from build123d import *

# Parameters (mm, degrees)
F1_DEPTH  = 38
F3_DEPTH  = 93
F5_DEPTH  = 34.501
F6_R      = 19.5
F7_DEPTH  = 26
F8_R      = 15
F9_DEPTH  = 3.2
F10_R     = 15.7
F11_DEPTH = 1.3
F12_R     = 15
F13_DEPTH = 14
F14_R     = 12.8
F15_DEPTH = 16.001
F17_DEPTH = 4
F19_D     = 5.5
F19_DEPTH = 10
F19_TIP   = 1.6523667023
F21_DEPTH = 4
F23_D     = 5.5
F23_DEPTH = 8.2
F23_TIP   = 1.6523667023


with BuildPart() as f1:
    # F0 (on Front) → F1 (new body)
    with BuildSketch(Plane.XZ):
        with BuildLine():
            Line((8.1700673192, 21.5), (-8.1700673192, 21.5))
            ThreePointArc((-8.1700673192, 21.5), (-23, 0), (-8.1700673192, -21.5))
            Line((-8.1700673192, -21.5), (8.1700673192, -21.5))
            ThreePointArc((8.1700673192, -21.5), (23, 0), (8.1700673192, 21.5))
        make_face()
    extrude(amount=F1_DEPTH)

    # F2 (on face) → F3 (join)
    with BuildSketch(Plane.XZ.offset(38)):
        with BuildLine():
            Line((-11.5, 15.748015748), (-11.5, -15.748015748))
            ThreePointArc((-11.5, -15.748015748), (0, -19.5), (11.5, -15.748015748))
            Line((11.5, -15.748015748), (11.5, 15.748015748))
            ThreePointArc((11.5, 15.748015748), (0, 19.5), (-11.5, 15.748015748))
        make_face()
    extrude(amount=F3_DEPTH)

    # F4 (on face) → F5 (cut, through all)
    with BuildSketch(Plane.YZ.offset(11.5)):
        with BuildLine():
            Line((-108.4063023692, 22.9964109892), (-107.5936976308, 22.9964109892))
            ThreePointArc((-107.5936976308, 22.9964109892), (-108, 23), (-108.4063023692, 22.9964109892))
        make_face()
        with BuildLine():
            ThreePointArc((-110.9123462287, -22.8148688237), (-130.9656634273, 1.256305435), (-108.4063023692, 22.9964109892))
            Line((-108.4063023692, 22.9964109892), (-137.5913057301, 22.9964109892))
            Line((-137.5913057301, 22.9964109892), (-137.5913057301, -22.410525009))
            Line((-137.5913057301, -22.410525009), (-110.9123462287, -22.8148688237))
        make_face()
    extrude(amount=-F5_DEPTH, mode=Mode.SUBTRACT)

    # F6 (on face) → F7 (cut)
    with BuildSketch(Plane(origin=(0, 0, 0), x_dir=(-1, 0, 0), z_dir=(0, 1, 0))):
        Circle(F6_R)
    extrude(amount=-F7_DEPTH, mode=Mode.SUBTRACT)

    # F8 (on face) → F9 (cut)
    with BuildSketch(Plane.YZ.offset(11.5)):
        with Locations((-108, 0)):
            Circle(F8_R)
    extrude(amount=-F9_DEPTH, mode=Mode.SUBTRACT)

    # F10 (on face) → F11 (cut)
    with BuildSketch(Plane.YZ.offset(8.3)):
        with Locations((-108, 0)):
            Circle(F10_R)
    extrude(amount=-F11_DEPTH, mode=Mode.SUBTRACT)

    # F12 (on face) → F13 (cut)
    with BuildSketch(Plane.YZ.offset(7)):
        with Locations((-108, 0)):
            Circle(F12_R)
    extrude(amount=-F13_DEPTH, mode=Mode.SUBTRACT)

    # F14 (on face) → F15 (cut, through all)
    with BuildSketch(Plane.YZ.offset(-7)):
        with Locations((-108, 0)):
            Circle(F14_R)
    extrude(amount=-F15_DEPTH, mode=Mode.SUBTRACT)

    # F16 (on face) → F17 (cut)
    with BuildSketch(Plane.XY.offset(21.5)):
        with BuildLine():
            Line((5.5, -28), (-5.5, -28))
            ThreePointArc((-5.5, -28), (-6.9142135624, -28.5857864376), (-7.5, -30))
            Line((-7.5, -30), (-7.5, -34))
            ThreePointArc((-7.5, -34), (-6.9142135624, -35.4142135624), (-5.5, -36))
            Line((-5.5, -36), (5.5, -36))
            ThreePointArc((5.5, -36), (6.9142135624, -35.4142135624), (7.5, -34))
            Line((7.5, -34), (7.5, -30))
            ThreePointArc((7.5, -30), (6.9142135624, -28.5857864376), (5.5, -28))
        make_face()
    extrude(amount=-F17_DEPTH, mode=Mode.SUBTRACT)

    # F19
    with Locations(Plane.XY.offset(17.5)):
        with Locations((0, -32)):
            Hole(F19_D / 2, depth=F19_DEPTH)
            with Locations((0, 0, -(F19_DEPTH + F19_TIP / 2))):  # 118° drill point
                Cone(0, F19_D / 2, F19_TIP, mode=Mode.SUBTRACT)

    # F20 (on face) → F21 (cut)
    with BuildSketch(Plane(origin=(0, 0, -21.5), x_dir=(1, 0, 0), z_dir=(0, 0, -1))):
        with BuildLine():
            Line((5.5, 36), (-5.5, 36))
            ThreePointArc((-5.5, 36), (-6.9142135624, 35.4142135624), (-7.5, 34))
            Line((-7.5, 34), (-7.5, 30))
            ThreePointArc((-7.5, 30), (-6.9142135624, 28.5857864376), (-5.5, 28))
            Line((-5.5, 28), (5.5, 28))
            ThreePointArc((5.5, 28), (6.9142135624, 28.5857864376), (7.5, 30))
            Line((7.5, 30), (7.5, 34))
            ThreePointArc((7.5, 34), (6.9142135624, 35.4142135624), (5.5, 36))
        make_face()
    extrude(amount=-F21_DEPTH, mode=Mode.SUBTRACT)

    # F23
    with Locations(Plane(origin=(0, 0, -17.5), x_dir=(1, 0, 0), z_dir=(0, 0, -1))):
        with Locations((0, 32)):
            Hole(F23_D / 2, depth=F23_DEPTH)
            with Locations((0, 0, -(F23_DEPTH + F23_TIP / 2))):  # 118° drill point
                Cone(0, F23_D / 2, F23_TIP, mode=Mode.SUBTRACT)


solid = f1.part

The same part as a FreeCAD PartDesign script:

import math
import FreeCAD as App
import Part
import Sketcher
from FreeCAD import Vector

doc = App.newDocument("Part")
body = doc.addObject("PartDesign::Body", "Body")

# Sketch on XZ plane
sketch1 = body.newObject("Sketcher::SketchObject", "Sketch")
sketch1.AttachmentSupport = (doc.getObject("XZ_Plane"), [""])
sketch1.MapMode = "FlatFace"
sketch1.addGeometry([
    Part.LineSegment(Vector(8, 22, 0), Vector(-8, 22, 0)),
    Part.ArcOfCircle(Part.Circle(Vector(0, 0, 0), Vector(0, 0, 1), 23), math.radians(111), math.radians(249)),
    Part.LineSegment(Vector(-8, -22, 0), Vector(8, -22, 0)),
    Part.ArcOfCircle(Part.Circle(Vector(0, 0, 0), Vector(0, 0, 1), 23), math.radians(-69), math.radians(69)),
], False)
sketch1.addConstraint([
    Sketcher.Constraint("Coincident", 0, 2, 1, 1),
    Sketcher.Constraint("Coincident", 1, 2, 2, 1),
    Sketcher.Constraint("Coincident", 2, 2, 3, 1),
    Sketcher.Constraint("Coincident", 3, 2, 0, 1),
    Sketcher.Constraint("Horizontal", 0),
    Sketcher.Constraint("Horizontal", 2),
    Sketcher.Constraint("Coincident", 1, 3, -1, 1),
    Sketcher.Constraint("Coincident", 3, 3, -1, 1),
    Sketcher.Constraint("Equal", 1, 3),
    Sketcher.Constraint("Vertical", 0, 2, 1, 2),
    Sketcher.Constraint("Radius", 1, 23.0),
    Sketcher.Constraint("DistanceY", 1, 2, 0, 2, 43.0),
])
pad1 = body.newObject("PartDesign::Pad", "Pad")
pad1.Profile = sketch1
pad1.Length = 38

# Sketch on XZ plane
sketch2 = body.newObject("Sketcher::SketchObject", "Sketch001")
sketch2.AttachmentSupport = (doc.getObject("XZ_Plane"), [""])
sketch2.MapMode = "FlatFace"
sketch2.AttachmentOffset = App.Placement(Vector(0, 0, 38), App.Rotation())
sketch2.addGeometry([
    Part.LineSegment(Vector(-12, 16, 0), Vector(-12, -16, 0)),
    Part.ArcOfCircle(Part.Circle(Vector(0, 0, 0), Vector(0, 0, 1), 20), math.radians(-126), math.radians(-54)),
    Part.LineSegment(Vector(12, -16, 0), Vector(12, 16, 0)),
    Part.ArcOfCircle(Part.Circle(Vector(0, 0, 0), Vector(0, 0, 1), 20), math.radians(54), math.radians(126)),
], False)
sketch2.addConstraint([
    Sketcher.Constraint("Coincident", 0, 2, 1, 1),
    Sketcher.Constraint("Coincident", 1, 2, 2, 1),
    Sketcher.Constraint("Coincident", 2, 2, 3, 1),
    Sketcher.Constraint("Coincident", 3, 2, 0, 1),
    Sketcher.Constraint("Vertical", 0),
    Sketcher.Constraint("Vertical", 2),
    Sketcher.Constraint("Coincident", 1, 3, -1, 1),
    Sketcher.Constraint("Coincident", 3, 3, -1, 1),
    Sketcher.Constraint("Equal", 1, 3),
    Sketcher.Constraint("Horizontal", 0, 2, 1, 2),
    Sketcher.Constraint("Radius", 1, 19.5),
    Sketcher.Constraint("DistanceX", 0, 2, 1, 2, 23.0),
])
pad2 = body.newObject("PartDesign::Pad", "Pad001")
pad2.Profile = sketch2
pad2.Length = 93

# Sketch on YZ plane
sketch3 = body.newObject("Sketcher::SketchObject", "Sketch002")
sketch3.AttachmentSupport = (doc.getObject("YZ_Plane"), [""])
sketch3.MapMode = "FlatFace"
sketch3.AttachmentOffset = App.Placement(Vector(0, 0, 11.5), App.Rotation())
sketch3.addGeometry([
    Part.LineSegment(Vector(-108.4, 23, 0), Vector(-107.6, 23, 0)),  # 0
    Part.ArcOfCircle(Part.Circle(Vector(-108, 0, 0), Vector(0, 0, 1), 23), math.radians(88.99), math.radians(91.01)),  # 1
    Part.ArcOfCircle(Part.Circle(Vector(-108, 0, 0), Vector(0, 0, 1), 23), math.radians(91), math.radians(263)),  # 2
    Part.LineSegment(Vector(-108.4, 23, 0), Vector(-137.6, 23, 0)),  # 3
    Part.LineSegment(Vector(-137.6, 23, 0), Vector(-137.6, -22.4, 0)),  # 4
    Part.LineSegment(Vector(-137.6, -22.4, 0), Vector(-110.9, -22.8, 0)),  # 5
], False)
sketch3.addConstraint([
    Sketcher.Constraint("Coincident", 0, 1, 1, 2),
    Sketcher.Constraint("Coincident", 1, 1, 0, 2),
    Sketcher.Constraint("Coincident", 2, 1, 3, 1),
    Sketcher.Constraint("Coincident", 3, 2, 4, 1),
    Sketcher.Constraint("Coincident", 4, 2, 5, 1),
    Sketcher.Constraint("Coincident", 5, 2, 2, 2),
    Sketcher.Constraint("Horizontal", 0),
    Sketcher.Constraint("Horizontal", 3),
    Sketcher.Constraint("Vertical", 4),
    Sketcher.Constraint("Coincident", 2, 3, 1, 3),
    Sketcher.Constraint("Coincident", 2, 1, 0, 1),
    Sketcher.Constraint("PointOnObject", 1, 3, -1),
    Sketcher.Constraint("Radius", 1, 23.0),
    Sketcher.Constraint("DistanceX", 1, 3, -1, 1, 108.0),
    Sketcher.Constraint("DistanceX", 0, 1, 0, 2, 0.812605),
    Sketcher.Constraint("DistanceX", 3, 2, 3, 1, 29.185003),
    Sketcher.Constraint("DistanceY", 4, 2, 4, 1, 45.406936),
    Sketcher.Constraint("DistanceY", 5, 2, -1, 1, 22.814869),
])
pocket1 = body.newObject("PartDesign::Pocket", "Pocket")
pocket1.Profile = sketch3
pocket1.Type = "ThroughAll"

# Sketch on XZ plane
sketch4 = body.newObject("Sketcher::SketchObject", "Sketch003")
sketch4.AttachmentSupport = (doc.getObject("XZ_Plane"), [""])
sketch4.MapMode = "FlatFace"
sketch4.addGeometry(Part.Circle(Vector(0, 0, 0), Vector(0, 0, 1), 20), False)
sketch4.addConstraint([
    Sketcher.Constraint("Coincident", 0, 3, -1, 1),
    Sketcher.Constraint("Diameter", 0, 39.0),
])
pocket2 = body.newObject("PartDesign::Pocket", "Pocket001")
pocket2.Profile = sketch4
pocket2.Length = 26
pocket2.Reversed = True

# Sketch on YZ plane
sketch5 = body.newObject("Sketcher::SketchObject", "Sketch004")
sketch5.AttachmentSupport = (doc.getObject("YZ_Plane"), [""])
sketch5.MapMode = "FlatFace"
sketch5.AttachmentOffset = App.Placement(Vector(0, 0, 11.5), App.Rotation())
sketch5.addGeometry(Part.Circle(Vector(-108, 0, 0), Vector(0, 0, 1), 15), False)
sketch5.addConstraint([
    Sketcher.Constraint("PointOnObject", 0, 3, -1),
    Sketcher.Constraint("Diameter", 0, 30.0),
    Sketcher.Constraint("DistanceX", 0, 3, -1, 1, 108.0),
])
pocket3 = body.newObject("PartDesign::Pocket", "Pocket002")
pocket3.Profile = sketch5
pocket3.Length = 3.2

# Sketch on YZ plane
sketch6 = body.newObject("Sketcher::SketchObject", "Sketch005")
sketch6.AttachmentSupport = (doc.getObject("YZ_Plane"), [""])
sketch6.MapMode = "FlatFace"
sketch6.AttachmentOffset = App.Placement(Vector(0, 0, 8.3), App.Rotation())
sketch6.addGeometry(Part.Circle(Vector(-108, 0, 0), Vector(0, 0, 1), 16), False)
sketch6.addConstraint([
    Sketcher.Constraint("PointOnObject", 0, 3, -1),
    Sketcher.Constraint("Diameter", 0, 31.4),
    Sketcher.Constraint("DistanceX", 0, 3, -1, 1, 108.0),
])
pocket4 = body.newObject("PartDesign::Pocket", "Pocket003")
pocket4.Profile = sketch6
pocket4.Length = 1.3

# Sketch on YZ plane
sketch7 = body.newObject("Sketcher::SketchObject", "Sketch006")
sketch7.AttachmentSupport = (doc.getObject("YZ_Plane"), [""])
sketch7.MapMode = "FlatFace"
sketch7.AttachmentOffset = App.Placement(Vector(0, 0, 7), App.Rotation())
sketch7.addGeometry(Part.Circle(Vector(-108, 0, 0), Vector(0, 0, 1), 15), False)
sketch7.addConstraint([
    Sketcher.Constraint("PointOnObject", 0, 3, -1),
    Sketcher.Constraint("Diameter", 0, 30.0),
    Sketcher.Constraint("DistanceX", 0, 3, -1, 1, 108.0),
])
pocket5 = body.newObject("PartDesign::Pocket", "Pocket004")
pocket5.Profile = sketch7
pocket5.Length = 14

# Sketch on YZ plane
sketch8 = body.newObject("Sketcher::SketchObject", "Sketch007")
sketch8.AttachmentSupport = (doc.getObject("YZ_Plane"), [""])
sketch8.MapMode = "FlatFace"
sketch8.AttachmentOffset = App.Placement(Vector(0, 0, -7), App.Rotation())
sketch8.addGeometry(Part.Circle(Vector(-108, 0, 0), Vector(0, 0, 1), 13), False)
sketch8.addConstraint([
    Sketcher.Constraint("PointOnObject", 0, 3, -1),
    Sketcher.Constraint("Diameter", 0, 25.6),
    Sketcher.Constraint("DistanceX", 0, 3, -1, 1, 108.0),
])
pocket6 = body.newObject("PartDesign::Pocket", "Pocket005")
pocket6.Profile = sketch8
pocket6.Type = "ThroughAll"

# Sketch on XY plane
sketch9 = body.newObject("Sketcher::SketchObject", "Sketch008")
sketch9.AttachmentSupport = (doc.getObject("XY_Plane"), [""])
sketch9.MapMode = "FlatFace"
sketch9.AttachmentOffset = App.Placement(Vector(0, 0, 21.5), App.Rotation())
sketch9.addGeometry([
    Part.LineSegment(Vector(5.5, -28, 0), Vector(-5.5, -28, 0)),  # 0
    Part.ArcOfCircle(Part.Circle(Vector(-5.5, -30, 0), Vector(0, 0, 1), 2), math.radians(90), math.radians(180)),  # 1
    Part.LineSegment(Vector(-7.5, -30, 0), Vector(-7.5, -34, 0)),  # 2
    Part.ArcOfCircle(Part.Circle(Vector(-5.5, -34, 0), Vector(0, 0, 1), 2), math.radians(180), math.radians(270)),  # 3
    Part.LineSegment(Vector(-5.5, -36, 0), Vector(5.5, -36, 0)),  # 4
    Part.ArcOfCircle(Part.Circle(Vector(5.5, -34, 0), Vector(0, 0, 1), 2), math.radians(-90), math.radians(0)),  # 5
    Part.LineSegment(Vector(7.5, -34, 0), Vector(7.5, -30, 0)),  # 6
    Part.ArcOfCircle(Part.Circle(Vector(5.5, -30, 0), Vector(0, 0, 1), 2), math.radians(0), math.radians(90)),  # 7
], False)
sketch9.addConstraint([
    Sketcher.Constraint("Tangent", 0, 2, 1, 1),
    Sketcher.Constraint("Tangent", 1, 2, 2, 1),
    Sketcher.Constraint("Tangent", 2, 2, 3, 1),
    Sketcher.Constraint("Tangent", 3, 2, 4, 1),
    Sketcher.Constraint("Tangent", 4, 2, 5, 1),
    Sketcher.Constraint("Tangent", 5, 2, 6, 1),
    Sketcher.Constraint("Tangent", 6, 2, 7, 1),
    Sketcher.Constraint("Tangent", 7, 2, 0, 1),
    Sketcher.Constraint("Horizontal", 0),
    Sketcher.Constraint("Vertical", 2),
    Sketcher.Constraint("Horizontal", 4),
    Sketcher.Constraint("Vertical", 6),
    Sketcher.Constraint("Equal", 1, 3),
    Sketcher.Constraint("Equal", 3, 5),
    Sketcher.Constraint("Equal", 5, 7),
    Sketcher.Constraint("Radius", 1, 2.0),
    Sketcher.Constraint("DistanceX", 0, 2, 0, 1, 11.0),
    Sketcher.Constraint("DistanceY", 2, 2, 2, 1, 4.0),
    Sketcher.Constraint("DistanceY", 1, 3, -1, 1, 30.0),
    Sketcher.Constraint("DistanceX", 1, 3, -1, 1, 5.5),
])
pocket7 = body.newObject("PartDesign::Pocket", "Pocket006")
pocket7.Profile = sketch9
pocket7.Length = 4

# Sketch on XY plane
sketch10 = body.newObject("Sketcher::SketchObject", "Sketch009")
sketch10.AttachmentSupport = (doc.getObject("XY_Plane"), [""])
sketch10.MapMode = "FlatFace"
sketch10.AttachmentOffset = App.Placement(Vector(0, 0, 17.5), App.Rotation())
sketch10.addGeometry(Part.Circle(Vector(0, -32, 0), Vector(0, 0, 1), 2.8), False)
sketch10.addConstraint([
    Sketcher.Constraint("PointOnObject", 0, 3, -2),
    Sketcher.Constraint("Diameter", 0, 5.5),
    Sketcher.Constraint("DistanceY", 0, 3, -1, 1, 32.0),
])
doc.recompute()
hole = body.newObject("PartDesign::Hole", "Hole")
hole.Profile = sketch10
hole.ThreadType = "None"
hole.Diameter = 5.5
hole.DepthType = "Dimension"
hole.Depth = 10
hole.DrillPoint = "Angled"
hole.DrillPointAngle = 118

# Sketch on XY plane
sketch11 = body.newObject("Sketcher::SketchObject", "Sketch010")
sketch11.AttachmentSupport = (doc.getObject("XY_Plane"), [""])
sketch11.MapMode = "FlatFace"
sketch11.AttachmentOffset = App.Placement(Vector(0, 0, -21.5), App.Rotation())
sketch11.addGeometry([
    Part.LineSegment(Vector(5.5, -36, 0), Vector(-5.5, -36, 0)),  # 0
    Part.ArcOfCircle(Part.Circle(Vector(-5.5, -34, 0), Vector(0, 0, 1), 2), math.radians(180), math.radians(270)),  # 1
    Part.LineSegment(Vector(-7.5, -34, 0), Vector(-7.5, -30, 0)),  # 2
    Part.ArcOfCircle(Part.Circle(Vector(-5.5, -30, 0), Vector(0, 0, 1), 2), math.radians(90), math.radians(180)),  # 3
    Part.LineSegment(Vector(-5.5, -28, 0), Vector(5.5, -28, 0)),  # 4
    Part.ArcOfCircle(Part.Circle(Vector(5.5, -30, 0), Vector(0, 0, 1), 2), math.radians(0), math.radians(90)),  # 5
    Part.LineSegment(Vector(7.5, -30, 0), Vector(7.5, -34, 0)),  # 6
    Part.ArcOfCircle(Part.Circle(Vector(5.5, -34, 0), Vector(0, 0, 1), 2), math.radians(-90), math.radians(0)),  # 7
], False)
sketch11.addConstraint([
    Sketcher.Constraint("Tangent", 0, 2, 1, 2),
    Sketcher.Constraint("Tangent", 1, 1, 2, 1),
    Sketcher.Constraint("Tangent", 2, 2, 3, 2),
    Sketcher.Constraint("Tangent", 3, 1, 4, 1),
    Sketcher.Constraint("Tangent", 4, 2, 5, 2),
    Sketcher.Constraint("Tangent", 5, 1, 6, 1),
    Sketcher.Constraint("Tangent", 6, 2, 7, 2),
    Sketcher.Constraint("Tangent", 7, 1, 0, 1),
    Sketcher.Constraint("Horizontal", 0),
    Sketcher.Constraint("Vertical", 2),
    Sketcher.Constraint("Horizontal", 4),
    Sketcher.Constraint("Vertical", 6),
    Sketcher.Constraint("Equal", 1, 3),
    Sketcher.Constraint("Equal", 3, 5),
    Sketcher.Constraint("Equal", 5, 7),
    Sketcher.Constraint("Radius", 1, 2.0),
    Sketcher.Constraint("DistanceX", 0, 2, 0, 1, 11.0),
    Sketcher.Constraint("DistanceY", 2, 1, 2, 2, 4.0),
    Sketcher.Constraint("DistanceY", 1, 3, -1, 1, 34.0),
    Sketcher.Constraint("DistanceX", 1, 3, -1, 1, 5.5),
])
pocket8 = body.newObject("PartDesign::Pocket", "Pocket007")
pocket8.Profile = sketch11
pocket8.Length = 4
pocket8.Reversed = True

# Sketch on XY plane
sketch12 = body.newObject("Sketcher::SketchObject", "Sketch011")
sketch12.AttachmentSupport = (doc.getObject("XY_Plane"), [""])
sketch12.MapMode = "FlatFace"
sketch12.AttachmentOffset = App.Placement(Vector(0, 0, -17.5), App.Rotation())
sketch12.addGeometry(Part.Circle(Vector(0, -32, 0), Vector(0, 0, 1), 2.8), False)
sketch12.addConstraint([
    Sketcher.Constraint("PointOnObject", 0, 3, -2),
    Sketcher.Constraint("Diameter", 0, 5.5),
    Sketcher.Constraint("DistanceY", 0, 3, -1, 1, 32.0),
])
doc.recompute()
hole2 = body.newObject("PartDesign::Hole", "Hole001")
hole2.Profile = sketch12
hole2.ThreadType = "None"
hole2.Diameter = 5.5
hole2.DepthType = "Dimension"
hole2.Depth = 8.2
hole2.DrillPoint = "Angled"
hole2.DrillPointAngle = 118
hole2.Reversed = True

doc.recompute()
